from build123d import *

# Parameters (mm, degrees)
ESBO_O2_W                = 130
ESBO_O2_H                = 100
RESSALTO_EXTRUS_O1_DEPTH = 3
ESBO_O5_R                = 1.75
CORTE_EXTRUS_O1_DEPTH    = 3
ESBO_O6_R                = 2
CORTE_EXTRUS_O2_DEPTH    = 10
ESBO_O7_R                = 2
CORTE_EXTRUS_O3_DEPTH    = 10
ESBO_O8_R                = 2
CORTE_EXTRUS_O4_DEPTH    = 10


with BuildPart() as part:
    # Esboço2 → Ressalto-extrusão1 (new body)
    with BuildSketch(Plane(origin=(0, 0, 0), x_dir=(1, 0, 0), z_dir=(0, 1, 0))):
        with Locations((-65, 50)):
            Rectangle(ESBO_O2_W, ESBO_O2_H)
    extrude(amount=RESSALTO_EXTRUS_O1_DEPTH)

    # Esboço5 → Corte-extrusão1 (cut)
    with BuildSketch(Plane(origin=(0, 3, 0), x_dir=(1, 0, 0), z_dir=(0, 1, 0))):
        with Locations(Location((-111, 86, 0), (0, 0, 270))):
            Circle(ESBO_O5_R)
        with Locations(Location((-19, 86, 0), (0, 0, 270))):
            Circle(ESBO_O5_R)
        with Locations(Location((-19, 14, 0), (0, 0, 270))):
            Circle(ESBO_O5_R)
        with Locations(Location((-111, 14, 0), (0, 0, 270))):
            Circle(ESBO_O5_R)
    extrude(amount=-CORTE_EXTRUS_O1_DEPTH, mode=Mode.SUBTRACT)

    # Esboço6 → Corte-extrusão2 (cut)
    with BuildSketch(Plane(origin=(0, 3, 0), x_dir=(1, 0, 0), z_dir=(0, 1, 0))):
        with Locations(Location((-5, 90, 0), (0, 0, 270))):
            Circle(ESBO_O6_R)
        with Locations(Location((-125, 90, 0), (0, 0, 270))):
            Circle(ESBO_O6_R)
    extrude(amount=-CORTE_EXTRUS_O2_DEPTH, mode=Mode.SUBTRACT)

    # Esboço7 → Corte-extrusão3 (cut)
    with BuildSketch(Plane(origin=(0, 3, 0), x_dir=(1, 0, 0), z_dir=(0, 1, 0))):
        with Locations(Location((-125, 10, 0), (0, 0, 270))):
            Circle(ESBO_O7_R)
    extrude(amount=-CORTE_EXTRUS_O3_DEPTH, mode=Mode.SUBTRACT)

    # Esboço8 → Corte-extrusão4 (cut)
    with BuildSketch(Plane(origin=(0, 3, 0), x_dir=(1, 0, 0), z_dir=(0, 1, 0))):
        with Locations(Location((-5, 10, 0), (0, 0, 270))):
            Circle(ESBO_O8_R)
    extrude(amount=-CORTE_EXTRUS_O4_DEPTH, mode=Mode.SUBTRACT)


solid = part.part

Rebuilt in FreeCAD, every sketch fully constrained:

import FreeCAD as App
import Part
import Sketcher
Q = App.Units.Quantity

doc = App.newDocument("Part")
params = doc.addObject("Spreadsheet::Sheet", "Params")
for row, (alias, value) in enumerate([
    ("sketch1_width", "130 mm"),
    ("sketch1_height", "100 mm"),
    ("pad1_length", "3 mm"),
    ("sketch2_diameter", "3.5 mm"),
    ("pocket1_length", "3 mm"),
    ("sketch3_diameter", "4 mm"),
    ("pocket2_length", "10 mm"),
    ("sketch4_diameter", "4 mm"),
    ("pocket3_length", "10 mm"),
    ("sketch5_diameter", "4 mm"),
    ("pocket4_length", "10 mm"),
], start=1):
    params.set(f"A{row}", alias)
    params.set(f"B{row}", "=" + value)
    params.setAlias(f"B{row}", alias)

body = doc.addObject("PartDesign::Body", "Body")

# Sketch on XZ plane
sketch1 = body.newObject("Sketcher::SketchObject", "Sketch")
sketch1.AttachmentSupport = (doc.getObject("XZ_Plane"), [""])
sketch1.MapMode = "FlatFace"
sketch1.addGeometry([
    Part.LineSegment(App.Vector(-130, -100, 0), App.Vector(-130, 0, 0)),
    Part.LineSegment(App.Vector(-130, 0, 0), App.Vector(0, 0, 0)),
    Part.LineSegment(App.Vector(0, 0, 0), App.Vector(0, -100, 0)),
    Part.LineSegment(App.Vector(0, -100, 0), App.Vector(-130, -100, 0)),
], False)
sketch1.addConstraint([
    Sketcher.Constraint("Coincident", 0, 2, 1, 1),
    Sketcher.Constraint("Coincident", 1, 2, 2, 1),
    Sketcher.Constraint("Coincident", 2, 2, 3, 1),
    Sketcher.Constraint("Coincident", 3, 2, 0, 1),
    Sketcher.Constraint("Vertical", 0),
    Sketcher.Constraint("Horizontal", 1),
    Sketcher.Constraint("Vertical", 2),
    Sketcher.Constraint("Horizontal", 3),
    Sketcher.Constraint("Coincident", 1, 2, -1, 1),
    Sketcher.Constraint("DistanceX", 1, 1, 1, 2, Q("130 mm")),
    Sketcher.Constraint("DistanceY", 0, 1, 0, 2, Q("100 mm")),
])
sketch1.setExpression("Constraints[9]", "Params.sketch1_width")
sketch1.setExpression("Constraints[10]", "Params.sketch1_height")
pad1 = body.newObject("PartDesign::Pad", "Pad")
pad1.Profile = sketch1
pad1.setExpression("Length", "Params.pad1_length")
pad1.Reversed = True

# Sketch on XZ plane
sketch2 = body.newObject("Sketcher::SketchObject", "Sketch001")
sketch2.AttachmentSupport = (doc.getObject("XZ_Plane"), [""])
sketch2.MapMode = "FlatFace"
sketch2.AttachmentOffset = App.Placement(App.Vector(0, 0, -3), App.Rotation())
sketch2.addGeometry([
    Part.Circle(App.Vector(-111, -86, 0), App.Vector(0, 0, 1), 1.8),
    Part.Circle(App.Vector(-19, -86, 0), App.Vector(0, 0, 1), 1.8),
    Part.Circle(App.Vector(-19, -14, 0), App.Vector(0, 0, 1), 1.8),
    Part.Circle(App.Vector(-111, -14, 0), App.Vector(0, 0, 1), 1.8),
], False)
sketch2.addConstraint([
    Sketcher.Constraint("Equal", 0, 1),
    Sketcher.Constraint("Equal", 1, 2),
    Sketcher.Constraint("Equal", 2, 3),
    Sketcher.Constraint("Horizontal", 0, 3, 1, 3),
    Sketcher.Constraint("Horizontal", 2, 3, 3, 3),
    Sketcher.Constraint("Vertical", 1, 3, 2, 3),
    Sketcher.Constraint("Vertical", 0, 3, 3, 3),
    Sketcher.Constraint("Diameter", 0, Q("3.5 mm")),
    Sketcher.Constraint("DistanceX", 0, 3, -1, 1, Q("111 mm")),
    Sketcher.Constraint("DistanceY", 0, 3, -1, 1, Q("86 mm")),
    Sketcher.Constraint("DistanceX", 1, 3, -1, 1, Q("19 mm")),
    Sketcher.Constraint("DistanceY", 2, 3, -1, 1, Q("14 mm")),
])
sketch2.setExpression("Constraints[7]", "Params.sketch2_diameter")
pocket1 = body.newObject("PartDesign::Pocket", "Pocket")
pocket1.Profile = sketch2
pocket1.setExpression("Length", "Params.pocket1_length")
pocket1.Reversed = True

# Sketch on XZ plane
sketch3 = body.newObject("Sketcher::SketchObject", "Sketch002")
sketch3.AttachmentSupport = (doc.getObject("XZ_Plane"), [""])
sketch3.MapMode = "FlatFace"
sketch3.AttachmentOffset = App.Placement(App.Vector(0, 0, -3), App.Rotation())
sketch3.addGeometry([
    Part.Circle(App.Vector(-5, -90, 0), App.Vector(0, 0, 1), 2),
    Part.Circle(App.Vector(-125, -90, 0), App.Vector(0, 0, 1), 2),
], False)
sketch3.addConstraint([
    Sketcher.Constraint("Equal", 0, 1),
    Sketcher.Constraint("Horizontal", 0, 3, 1, 3),
    Sketcher.Constraint("Diameter", 0, Q("4 mm")),
    Sketcher.Constraint("DistanceX", 0, 3, -1, 1, Q("5 mm")),
    Sketcher.Constraint("DistanceY", 0, 3, -1, 1, Q("90 mm")),
    Sketcher.Constraint("DistanceX", 1, 3, -1, 1, Q("125 mm")),
])
sketch3.setExpression("Constraints[2]", "Params.sketch3_diameter")
pocket2 = body.newObject("PartDesign::Pocket", "Pocket001")
pocket2.Profile = sketch3
pocket2.setExpression("Length", "Params.pocket2_length")
pocket2.Reversed = True

# Sketch on XZ plane
sketch4 = body.newObject("Sketcher::SketchObject", "Sketch003")
sketch4.AttachmentSupport = (doc.getObject("XZ_Plane"), [""])
sketch4.MapMode = "FlatFace"
sketch4.AttachmentOffset = App.Placement(App.Vector(0, 0, -3), App.Rotation())
sketch4.addGeometry(Part.Circle(App.Vector(-125, -10, 0), App.Vector(0, 0, 1), 2), False)
sketch4.addConstraint([
    Sketcher.Constraint("Diameter", 0, Q("4 mm")),
    Sketcher.Constraint("DistanceX", 0, 3, -1, 1, Q("125 mm")),
    Sketcher.Constraint("DistanceY", 0, 3, -1, 1, Q("10 mm")),
])
sketch4.setExpression("Constraints[0]", "Params.sketch4_diameter")
pocket3 = body.newObject("PartDesign::Pocket", "Pocket002")
pocket3.Profile = sketch4
pocket3.setExpression("Length", "Params.pocket3_length")
pocket3.Reversed = True

# Sketch on XZ plane
sketch5 = body.newObject("Sketcher::SketchObject", "Sketch004")
sketch5.AttachmentSupport = (doc.getObject("XZ_Plane"), [""])
sketch5.MapMode = "FlatFace"
sketch5.AttachmentOffset = App.Placement(App.Vector(0, 0, -3), App.Rotation())
sketch5.addGeometry(Part.Circle(App.Vector(-5, -10, 0), App.Vector(0, 0, 1), 2), False)
sketch5.addConstraint([
    Sketcher.Constraint("Diameter", 0, Q("4 mm")),
    Sketcher.Constraint("DistanceX", 0, 3, -1, 1, Q("5 mm")),
    Sketcher.Constraint("DistanceY", 0, 3, -1, 1, Q("10 mm")),
])
sketch5.setExpression("Constraints[0]", "Params.sketch5_diameter")
pocket4 = body.newObject("PartDesign::Pocket", "Pocket003")
pocket4.Profile = sketch5
pocket4.setExpression("Length", "Params.pocket4_length")
pocket4.Reversed = True

doc.recompute()
